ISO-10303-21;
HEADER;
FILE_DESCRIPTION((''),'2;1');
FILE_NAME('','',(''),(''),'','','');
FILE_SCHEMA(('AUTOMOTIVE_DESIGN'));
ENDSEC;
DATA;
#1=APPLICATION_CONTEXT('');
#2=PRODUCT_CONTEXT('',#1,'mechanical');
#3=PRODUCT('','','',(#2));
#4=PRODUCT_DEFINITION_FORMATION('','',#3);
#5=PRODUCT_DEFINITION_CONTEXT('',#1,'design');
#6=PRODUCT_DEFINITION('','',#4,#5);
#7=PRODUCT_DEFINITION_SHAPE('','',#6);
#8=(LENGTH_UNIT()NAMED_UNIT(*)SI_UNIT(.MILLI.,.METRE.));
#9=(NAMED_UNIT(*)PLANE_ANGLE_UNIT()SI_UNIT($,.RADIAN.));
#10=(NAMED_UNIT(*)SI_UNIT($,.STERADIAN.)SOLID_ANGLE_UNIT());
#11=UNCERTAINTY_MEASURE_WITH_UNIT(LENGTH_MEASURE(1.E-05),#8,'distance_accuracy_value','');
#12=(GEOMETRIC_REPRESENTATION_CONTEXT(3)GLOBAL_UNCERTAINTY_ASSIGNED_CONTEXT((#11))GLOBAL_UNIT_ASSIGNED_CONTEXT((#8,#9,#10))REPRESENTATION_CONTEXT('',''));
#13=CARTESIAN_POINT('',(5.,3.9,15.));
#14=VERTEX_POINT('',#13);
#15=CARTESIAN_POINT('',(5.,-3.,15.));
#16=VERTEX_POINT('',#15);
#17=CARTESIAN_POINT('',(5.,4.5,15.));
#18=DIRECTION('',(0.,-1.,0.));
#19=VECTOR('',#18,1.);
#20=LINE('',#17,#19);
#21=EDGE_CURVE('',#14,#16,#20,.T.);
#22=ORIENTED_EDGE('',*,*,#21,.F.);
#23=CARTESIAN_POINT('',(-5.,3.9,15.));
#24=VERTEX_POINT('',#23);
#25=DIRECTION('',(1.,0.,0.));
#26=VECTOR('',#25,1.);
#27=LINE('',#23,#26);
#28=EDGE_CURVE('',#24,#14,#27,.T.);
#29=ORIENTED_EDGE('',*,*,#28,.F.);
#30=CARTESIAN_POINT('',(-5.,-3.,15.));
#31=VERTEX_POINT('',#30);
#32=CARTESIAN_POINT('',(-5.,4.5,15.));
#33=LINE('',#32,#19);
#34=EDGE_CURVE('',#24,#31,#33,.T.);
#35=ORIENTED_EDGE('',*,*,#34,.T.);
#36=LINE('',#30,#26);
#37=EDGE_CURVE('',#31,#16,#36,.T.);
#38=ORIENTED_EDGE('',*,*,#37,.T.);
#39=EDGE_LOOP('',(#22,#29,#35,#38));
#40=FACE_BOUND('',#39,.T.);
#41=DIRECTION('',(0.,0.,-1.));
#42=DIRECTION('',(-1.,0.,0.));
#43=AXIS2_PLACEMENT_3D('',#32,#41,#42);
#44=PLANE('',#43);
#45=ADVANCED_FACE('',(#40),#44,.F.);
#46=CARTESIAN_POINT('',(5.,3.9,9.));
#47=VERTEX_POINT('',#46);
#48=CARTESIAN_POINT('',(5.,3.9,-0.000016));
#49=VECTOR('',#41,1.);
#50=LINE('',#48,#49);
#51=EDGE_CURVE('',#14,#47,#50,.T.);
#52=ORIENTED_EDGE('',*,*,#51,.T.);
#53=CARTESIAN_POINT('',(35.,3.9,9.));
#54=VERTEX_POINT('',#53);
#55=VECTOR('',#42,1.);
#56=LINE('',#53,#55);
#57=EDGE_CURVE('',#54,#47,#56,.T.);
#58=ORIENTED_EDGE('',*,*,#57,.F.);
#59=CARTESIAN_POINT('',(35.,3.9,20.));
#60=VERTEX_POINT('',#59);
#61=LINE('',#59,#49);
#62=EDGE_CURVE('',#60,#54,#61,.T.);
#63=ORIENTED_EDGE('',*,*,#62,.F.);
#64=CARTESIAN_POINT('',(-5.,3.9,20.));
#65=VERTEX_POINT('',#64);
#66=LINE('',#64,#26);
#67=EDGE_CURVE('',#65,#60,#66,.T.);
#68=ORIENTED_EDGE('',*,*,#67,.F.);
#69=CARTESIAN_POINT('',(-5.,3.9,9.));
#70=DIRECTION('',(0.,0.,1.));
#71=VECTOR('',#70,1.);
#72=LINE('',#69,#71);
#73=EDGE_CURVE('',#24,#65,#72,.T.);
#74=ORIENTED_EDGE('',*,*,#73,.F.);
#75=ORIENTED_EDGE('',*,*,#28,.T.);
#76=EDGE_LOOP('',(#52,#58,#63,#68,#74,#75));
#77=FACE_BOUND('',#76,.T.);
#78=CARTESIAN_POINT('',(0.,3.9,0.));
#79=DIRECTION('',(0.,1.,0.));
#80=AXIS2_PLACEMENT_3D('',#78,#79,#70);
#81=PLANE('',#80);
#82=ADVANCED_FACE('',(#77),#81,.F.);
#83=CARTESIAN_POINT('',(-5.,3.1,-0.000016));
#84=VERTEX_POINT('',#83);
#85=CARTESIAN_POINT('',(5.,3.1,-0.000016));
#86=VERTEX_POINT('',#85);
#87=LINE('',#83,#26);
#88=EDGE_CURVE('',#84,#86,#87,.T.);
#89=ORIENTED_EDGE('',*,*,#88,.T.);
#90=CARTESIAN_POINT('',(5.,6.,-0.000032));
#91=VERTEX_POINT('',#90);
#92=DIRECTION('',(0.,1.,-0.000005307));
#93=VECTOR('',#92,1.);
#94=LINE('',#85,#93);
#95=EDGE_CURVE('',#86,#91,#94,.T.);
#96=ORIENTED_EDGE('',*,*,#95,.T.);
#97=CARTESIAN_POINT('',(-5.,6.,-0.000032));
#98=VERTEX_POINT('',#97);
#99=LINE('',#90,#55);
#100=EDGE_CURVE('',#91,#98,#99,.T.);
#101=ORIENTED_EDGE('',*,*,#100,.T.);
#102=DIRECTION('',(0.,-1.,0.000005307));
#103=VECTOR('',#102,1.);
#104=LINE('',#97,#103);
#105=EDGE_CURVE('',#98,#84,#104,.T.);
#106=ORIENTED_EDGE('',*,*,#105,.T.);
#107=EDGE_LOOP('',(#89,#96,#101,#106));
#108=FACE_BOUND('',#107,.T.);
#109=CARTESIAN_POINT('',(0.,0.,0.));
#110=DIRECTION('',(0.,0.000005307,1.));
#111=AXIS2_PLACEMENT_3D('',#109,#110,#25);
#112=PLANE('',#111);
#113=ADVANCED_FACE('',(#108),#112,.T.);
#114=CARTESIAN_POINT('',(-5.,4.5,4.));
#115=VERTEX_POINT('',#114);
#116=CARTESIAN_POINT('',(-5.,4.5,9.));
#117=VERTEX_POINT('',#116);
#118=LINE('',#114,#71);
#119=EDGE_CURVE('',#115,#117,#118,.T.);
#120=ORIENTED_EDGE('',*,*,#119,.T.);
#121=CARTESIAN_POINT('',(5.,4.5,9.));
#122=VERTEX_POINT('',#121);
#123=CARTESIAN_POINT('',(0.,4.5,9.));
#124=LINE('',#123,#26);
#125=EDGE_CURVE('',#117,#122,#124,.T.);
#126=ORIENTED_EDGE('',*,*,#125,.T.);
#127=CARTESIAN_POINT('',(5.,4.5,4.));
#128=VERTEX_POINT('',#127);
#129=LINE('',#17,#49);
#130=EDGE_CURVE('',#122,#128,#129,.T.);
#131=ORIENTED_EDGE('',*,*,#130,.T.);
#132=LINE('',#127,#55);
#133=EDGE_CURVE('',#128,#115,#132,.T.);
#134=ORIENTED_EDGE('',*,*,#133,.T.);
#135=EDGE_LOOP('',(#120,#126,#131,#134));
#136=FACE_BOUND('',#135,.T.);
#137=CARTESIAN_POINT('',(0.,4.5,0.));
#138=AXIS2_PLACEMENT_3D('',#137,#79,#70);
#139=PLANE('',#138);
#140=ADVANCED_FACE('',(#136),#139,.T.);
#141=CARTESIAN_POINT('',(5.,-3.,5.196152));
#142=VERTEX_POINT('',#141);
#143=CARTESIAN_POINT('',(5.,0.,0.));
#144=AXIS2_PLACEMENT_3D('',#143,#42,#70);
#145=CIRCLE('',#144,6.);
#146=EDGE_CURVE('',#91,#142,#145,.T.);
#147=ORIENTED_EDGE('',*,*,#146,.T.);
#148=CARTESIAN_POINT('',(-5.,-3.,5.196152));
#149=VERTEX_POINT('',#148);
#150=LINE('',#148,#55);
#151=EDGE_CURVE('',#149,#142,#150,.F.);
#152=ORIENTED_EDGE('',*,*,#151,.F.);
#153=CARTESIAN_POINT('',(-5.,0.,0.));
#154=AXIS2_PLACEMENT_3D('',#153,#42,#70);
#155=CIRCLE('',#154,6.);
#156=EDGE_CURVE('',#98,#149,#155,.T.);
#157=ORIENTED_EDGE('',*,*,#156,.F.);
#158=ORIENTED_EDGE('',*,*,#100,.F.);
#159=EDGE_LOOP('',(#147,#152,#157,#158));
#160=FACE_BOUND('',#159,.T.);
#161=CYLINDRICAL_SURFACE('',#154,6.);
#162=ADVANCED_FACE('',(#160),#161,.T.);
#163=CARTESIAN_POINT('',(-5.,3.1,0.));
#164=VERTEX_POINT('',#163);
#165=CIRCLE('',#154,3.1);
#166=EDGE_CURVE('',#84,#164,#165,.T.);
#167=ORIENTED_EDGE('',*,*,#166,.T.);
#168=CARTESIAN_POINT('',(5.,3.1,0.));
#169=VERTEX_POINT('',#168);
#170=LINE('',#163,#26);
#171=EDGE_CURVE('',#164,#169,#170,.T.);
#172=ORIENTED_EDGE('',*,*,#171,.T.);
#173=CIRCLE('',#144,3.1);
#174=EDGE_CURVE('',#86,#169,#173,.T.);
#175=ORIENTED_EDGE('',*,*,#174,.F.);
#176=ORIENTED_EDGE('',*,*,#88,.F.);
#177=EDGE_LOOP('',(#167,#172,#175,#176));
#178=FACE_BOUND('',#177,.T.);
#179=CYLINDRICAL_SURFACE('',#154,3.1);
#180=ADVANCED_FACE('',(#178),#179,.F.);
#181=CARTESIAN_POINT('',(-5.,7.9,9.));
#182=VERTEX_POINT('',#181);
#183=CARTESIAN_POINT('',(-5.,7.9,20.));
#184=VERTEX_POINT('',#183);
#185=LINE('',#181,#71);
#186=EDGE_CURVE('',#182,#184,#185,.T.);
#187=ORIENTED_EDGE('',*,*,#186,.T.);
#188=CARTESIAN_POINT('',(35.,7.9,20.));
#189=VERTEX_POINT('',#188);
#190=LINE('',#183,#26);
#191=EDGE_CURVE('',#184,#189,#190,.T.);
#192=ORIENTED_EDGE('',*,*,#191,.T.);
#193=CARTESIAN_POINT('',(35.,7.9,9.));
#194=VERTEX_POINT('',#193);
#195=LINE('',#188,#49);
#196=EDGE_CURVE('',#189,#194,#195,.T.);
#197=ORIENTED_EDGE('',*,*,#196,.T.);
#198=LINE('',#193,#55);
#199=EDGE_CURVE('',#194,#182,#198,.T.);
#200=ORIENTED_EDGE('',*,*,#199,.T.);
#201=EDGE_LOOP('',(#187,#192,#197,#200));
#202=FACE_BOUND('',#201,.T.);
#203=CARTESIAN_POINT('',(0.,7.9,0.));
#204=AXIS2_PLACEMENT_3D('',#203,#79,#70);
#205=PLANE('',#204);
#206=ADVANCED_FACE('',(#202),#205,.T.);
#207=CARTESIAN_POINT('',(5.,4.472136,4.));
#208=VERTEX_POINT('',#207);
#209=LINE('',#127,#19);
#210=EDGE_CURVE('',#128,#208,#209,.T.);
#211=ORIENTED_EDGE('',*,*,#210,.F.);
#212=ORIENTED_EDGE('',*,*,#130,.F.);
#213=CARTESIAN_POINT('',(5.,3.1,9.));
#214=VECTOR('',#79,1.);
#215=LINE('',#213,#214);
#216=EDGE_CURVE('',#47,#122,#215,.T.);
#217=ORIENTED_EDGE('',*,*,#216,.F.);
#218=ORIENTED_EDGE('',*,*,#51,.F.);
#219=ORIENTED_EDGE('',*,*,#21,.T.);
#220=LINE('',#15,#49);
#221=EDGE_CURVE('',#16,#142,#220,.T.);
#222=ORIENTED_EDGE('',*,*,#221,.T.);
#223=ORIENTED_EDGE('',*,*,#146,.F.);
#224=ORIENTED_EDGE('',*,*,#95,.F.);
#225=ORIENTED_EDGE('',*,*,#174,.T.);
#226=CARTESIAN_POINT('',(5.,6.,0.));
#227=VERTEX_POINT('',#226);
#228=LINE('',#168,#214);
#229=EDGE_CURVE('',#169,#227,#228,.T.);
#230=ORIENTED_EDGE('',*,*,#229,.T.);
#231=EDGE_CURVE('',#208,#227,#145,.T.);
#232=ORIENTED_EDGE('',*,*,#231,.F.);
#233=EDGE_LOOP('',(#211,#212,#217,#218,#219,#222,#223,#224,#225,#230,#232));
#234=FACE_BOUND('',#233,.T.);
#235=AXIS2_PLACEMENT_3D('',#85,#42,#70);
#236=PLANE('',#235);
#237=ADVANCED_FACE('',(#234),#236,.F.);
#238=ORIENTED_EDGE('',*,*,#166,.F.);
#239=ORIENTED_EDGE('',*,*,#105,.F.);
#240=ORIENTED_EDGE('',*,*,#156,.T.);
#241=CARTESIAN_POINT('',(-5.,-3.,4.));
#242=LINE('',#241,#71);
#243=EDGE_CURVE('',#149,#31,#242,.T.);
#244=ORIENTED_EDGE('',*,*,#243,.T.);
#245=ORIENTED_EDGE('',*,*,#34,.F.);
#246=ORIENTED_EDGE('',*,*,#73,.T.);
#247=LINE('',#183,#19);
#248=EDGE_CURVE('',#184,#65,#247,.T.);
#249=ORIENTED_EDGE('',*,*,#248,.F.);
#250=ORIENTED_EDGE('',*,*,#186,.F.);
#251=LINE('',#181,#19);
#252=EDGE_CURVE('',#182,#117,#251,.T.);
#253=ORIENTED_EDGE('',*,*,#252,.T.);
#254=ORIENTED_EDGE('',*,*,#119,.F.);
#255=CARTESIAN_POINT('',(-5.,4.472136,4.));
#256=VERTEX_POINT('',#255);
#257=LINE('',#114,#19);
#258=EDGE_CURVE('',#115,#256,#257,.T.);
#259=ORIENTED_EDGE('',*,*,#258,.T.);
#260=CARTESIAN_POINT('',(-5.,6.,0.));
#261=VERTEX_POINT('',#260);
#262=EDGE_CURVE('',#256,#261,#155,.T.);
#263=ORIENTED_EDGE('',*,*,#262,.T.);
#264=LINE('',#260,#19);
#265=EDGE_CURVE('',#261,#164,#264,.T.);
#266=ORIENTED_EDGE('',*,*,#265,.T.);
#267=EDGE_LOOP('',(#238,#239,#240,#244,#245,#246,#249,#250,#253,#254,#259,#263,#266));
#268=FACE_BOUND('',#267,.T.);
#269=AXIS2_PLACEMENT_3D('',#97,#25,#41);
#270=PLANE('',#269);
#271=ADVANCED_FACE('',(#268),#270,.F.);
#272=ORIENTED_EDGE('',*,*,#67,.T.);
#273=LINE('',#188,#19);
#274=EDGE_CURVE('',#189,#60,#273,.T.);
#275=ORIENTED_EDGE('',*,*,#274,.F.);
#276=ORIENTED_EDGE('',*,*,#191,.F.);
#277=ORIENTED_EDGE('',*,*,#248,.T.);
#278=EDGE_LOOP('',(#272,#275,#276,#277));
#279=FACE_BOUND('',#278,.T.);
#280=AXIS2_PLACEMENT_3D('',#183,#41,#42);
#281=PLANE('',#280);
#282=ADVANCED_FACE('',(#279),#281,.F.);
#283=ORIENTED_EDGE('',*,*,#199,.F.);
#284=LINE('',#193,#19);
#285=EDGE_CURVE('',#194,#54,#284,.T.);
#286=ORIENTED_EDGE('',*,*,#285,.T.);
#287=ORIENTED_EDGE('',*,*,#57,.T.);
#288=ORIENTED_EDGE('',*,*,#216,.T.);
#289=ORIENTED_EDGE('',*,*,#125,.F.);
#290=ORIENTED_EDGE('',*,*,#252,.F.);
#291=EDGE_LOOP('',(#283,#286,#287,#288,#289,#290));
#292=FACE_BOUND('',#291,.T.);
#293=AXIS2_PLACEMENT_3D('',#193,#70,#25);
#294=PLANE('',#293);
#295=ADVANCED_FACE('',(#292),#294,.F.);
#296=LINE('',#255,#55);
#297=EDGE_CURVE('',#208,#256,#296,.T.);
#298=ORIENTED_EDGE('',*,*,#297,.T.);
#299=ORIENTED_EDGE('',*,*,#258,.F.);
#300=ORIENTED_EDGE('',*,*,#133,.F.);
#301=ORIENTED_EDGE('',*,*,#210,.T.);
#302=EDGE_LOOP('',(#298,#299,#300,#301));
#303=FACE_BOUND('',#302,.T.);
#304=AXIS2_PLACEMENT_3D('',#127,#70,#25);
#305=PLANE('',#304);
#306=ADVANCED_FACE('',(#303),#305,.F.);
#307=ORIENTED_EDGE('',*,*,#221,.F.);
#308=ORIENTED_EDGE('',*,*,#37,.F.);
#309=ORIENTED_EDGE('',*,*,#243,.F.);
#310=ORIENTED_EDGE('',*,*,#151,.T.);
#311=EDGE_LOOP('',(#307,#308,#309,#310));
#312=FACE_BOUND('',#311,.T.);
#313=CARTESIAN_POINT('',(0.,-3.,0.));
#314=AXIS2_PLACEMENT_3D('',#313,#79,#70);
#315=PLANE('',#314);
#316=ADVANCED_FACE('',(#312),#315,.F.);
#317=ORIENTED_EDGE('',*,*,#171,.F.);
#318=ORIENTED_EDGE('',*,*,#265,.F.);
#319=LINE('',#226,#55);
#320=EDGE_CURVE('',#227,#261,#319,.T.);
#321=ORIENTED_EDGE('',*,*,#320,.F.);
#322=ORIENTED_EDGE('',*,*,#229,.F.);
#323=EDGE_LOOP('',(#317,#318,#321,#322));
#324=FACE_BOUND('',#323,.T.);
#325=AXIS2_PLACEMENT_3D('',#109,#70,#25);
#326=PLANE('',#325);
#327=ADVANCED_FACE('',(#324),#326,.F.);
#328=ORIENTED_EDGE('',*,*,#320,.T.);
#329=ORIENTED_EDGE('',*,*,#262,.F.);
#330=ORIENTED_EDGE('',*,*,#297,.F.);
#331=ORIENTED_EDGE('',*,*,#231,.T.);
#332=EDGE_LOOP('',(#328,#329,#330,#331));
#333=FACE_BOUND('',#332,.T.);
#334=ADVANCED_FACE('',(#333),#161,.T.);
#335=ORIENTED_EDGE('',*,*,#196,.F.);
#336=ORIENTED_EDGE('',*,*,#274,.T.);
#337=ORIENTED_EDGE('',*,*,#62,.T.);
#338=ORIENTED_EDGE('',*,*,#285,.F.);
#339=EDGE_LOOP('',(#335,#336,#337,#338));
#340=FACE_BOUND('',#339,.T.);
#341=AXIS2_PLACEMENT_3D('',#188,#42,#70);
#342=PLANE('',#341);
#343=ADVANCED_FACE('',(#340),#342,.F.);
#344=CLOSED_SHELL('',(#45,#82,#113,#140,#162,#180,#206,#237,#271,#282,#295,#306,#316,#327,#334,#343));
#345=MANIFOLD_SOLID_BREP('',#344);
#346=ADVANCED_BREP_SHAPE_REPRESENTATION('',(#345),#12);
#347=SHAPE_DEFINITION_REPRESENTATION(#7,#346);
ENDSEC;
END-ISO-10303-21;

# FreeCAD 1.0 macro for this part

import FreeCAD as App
import Part
import Sketcher
Q = App.Units.Quantity

doc = App.newDocument("Part")
body = doc.addObject("PartDesign::Body", "Body")

# Sketch on XY plane
sketch1 = doc.addObject("Sketcher::SketchObject", "Sketch")
body.addObject(sketch1)
sketch1.AttachmentSupport = (doc.XY_Plane, [""])
sketch1.MapMode = "FlatFace"
sketch1.addGeometry([
    Part.LineSegment(App.Vector(-5, 6, 0), App.Vector(-5, 3.1, 0)),
    Part.LineSegment(App.Vector(-5, 3.1, 0), App.Vector(5, 3.1, 0)),
    Part.LineSegment(App.Vector(5, 3.1, 0), App.Vector(5, 6, 0)),
    Part.LineSegment(App.Vector(5, 6, 0), App.Vector(-5, 6, 0)),
], False)
sketch1.addConstraint([
    Sketcher.Constraint("Coincident", 0, 2, 1, 1),
    Sketcher.Constraint("Coincident", 1, 2, 2, 1),
    Sketcher.Constraint("Coincident", 2, 2, 3, 1),
    Sketcher.Constraint("Coincident", 3, 2, 0, 1),
    Sketcher.Constraint("Vertical", 0),
    Sketcher.Constraint("Horizontal", 1),
    Sketcher.Constraint("Vertical", 2),
    Sketcher.Constraint("Horizontal", 3),
    Sketcher.Constraint("DistanceX", 1, 1, 1, 2, Q("10 mm")),
    Sketcher.Constraint("DistanceY", 0, 2, 0, 1, Q("2.9 mm")),
    Sketcher.Constraint("DistanceX", 0, 2, -1, 1, Q("5 mm")),
    Sketcher.Constraint("DistanceY", -1, 1, 2, 2, Q("6 mm")),
])
revolution = doc.addObject("PartDesign::Revolution", "Revolution")
body.addObject(revolution)
revolution.Profile = sketch1
revolution.ReferenceAxis = (sketch1, ["H_Axis"])
revolution.Angle = 359.999696

# Sketch on XZ plane
sketch2 = doc.addObject("Sketcher::SketchObject", "Sketch001")
body.addObject(sketch2)
sketch2.AttachmentSupport = (doc.XZ_Plane, [""])
sketch2.MapMode = "FlatFace"
sketch2.AttachmentOffset = App.Placement(App.Vector(0, 0, 3), App.Rotation())
sketch2.addGeometry([
    Part.LineSegment(App.Vector(-5, 4, 0), App.Vector(-5, 15, 0)),
    Part.LineSegment(App.Vector(-5, 15, 0), App.Vector(5, 15, 0)),
    Part.LineSegment(App.Vector(5, 15, 0), App.Vector(5, 4, 0)),
    Part.LineSegment(App.Vector(5, 4, 0), App.Vector(-5, 4, 0)),
], False)
sketch2.addConstraint([
    Sketcher.Constraint("Coincident", 0, 2, 1, 1),
    Sketcher.Constraint("Coincident", 1, 2, 2, 1),
    Sketcher.Constraint("Coincident", 2, 2, 3, 1),
    Sketcher.Constraint("Coincident", 3, 2, 0, 1),
    Sketcher.Constraint("Vertical", 0),
    Sketcher.Constraint("Horizontal", 1),
    Sketcher.Constraint("Vertical", 2),
    Sketcher.Constraint("Horizontal", 3),
    Sketcher.Constraint("DistanceX", 1, 1, 1, 2, Q("10 mm")),
    Sketcher.Constraint("DistanceY", 0, 1, 0, 2, Q("11 mm")),
    Sketcher.Constraint("DistanceX", 0, 2, -1, 1, Q("5 mm")),
    Sketcher.Constraint("DistanceY", -1, 1, 0, 2, Q("15 mm")),
])
pad1 = doc.addObject("PartDesign::Pad", "Pad")
body.addObject(pad1)
pad1.Profile = sketch2
pad1.Length = 7.5
pad1.Reversed = True

# Sketch on XZ plane
sketch3 = doc.addObject("Sketcher::SketchObject", "Sketch002")
body.addObject(sketch3)
sketch3.AttachmentSupport = (doc.XZ_Plane, [""])
sketch3.MapMode = "FlatFace"
sketch3.AttachmentOffset = App.Placement(App.Vector(0, 0, -3.9), App.Rotation())
sketch3.addGeometry([
    Part.LineSegment(App.Vector(-5, 9, 0), App.Vector(-5, 20, 0)),
    Part.LineSegment(App.Vector(-5, 20, 0), App.Vector(35, 20, 0)),
    Part.LineSegment(App.Vector(35, 20, 0), App.Vector(35, 9, 0)),
    Part.LineSegment(App.Vector(35, 9, 0), App.Vector(-5, 9, 0)),
], False)
sketch3.addConstraint([
    Sketcher.Constraint("Coincident", 0, 2, 1, 1),
    Sketcher.Constraint("Coincident", 1, 2, 2, 1),
    Sketcher.Constraint("Coincident", 2, 2, 3, 1),
    Sketcher.Constraint("Coincident", 3, 2, 0, 1),
    Sketcher.Constraint("Vertical", 0),
    Sketcher.Constraint("Horizontal", 1),
    Sketcher.Constraint("Vertical", 2),
    Sketcher.Constraint("Horizontal", 3),
    Sketcher.Constraint("DistanceX", 1, 1, 1, 2, Q("40 mm")),
    Sketcher.Constraint("DistanceY", 0, 1, 0, 2, Q("11 mm")),
    Sketcher.Constraint("DistanceX", 0, 2, -1, 1, Q("5 mm")),
    Sketcher.Constraint("DistanceY", -1, 1, 0, 2, Q("20 mm")),
])
pad2 = doc.addObject("PartDesign::Pad", "Pad001")
body.addObject(pad2)
pad2.Profile = sketch3
pad2.Length = 4
pad2.Reversed = True

doc.recompute()
